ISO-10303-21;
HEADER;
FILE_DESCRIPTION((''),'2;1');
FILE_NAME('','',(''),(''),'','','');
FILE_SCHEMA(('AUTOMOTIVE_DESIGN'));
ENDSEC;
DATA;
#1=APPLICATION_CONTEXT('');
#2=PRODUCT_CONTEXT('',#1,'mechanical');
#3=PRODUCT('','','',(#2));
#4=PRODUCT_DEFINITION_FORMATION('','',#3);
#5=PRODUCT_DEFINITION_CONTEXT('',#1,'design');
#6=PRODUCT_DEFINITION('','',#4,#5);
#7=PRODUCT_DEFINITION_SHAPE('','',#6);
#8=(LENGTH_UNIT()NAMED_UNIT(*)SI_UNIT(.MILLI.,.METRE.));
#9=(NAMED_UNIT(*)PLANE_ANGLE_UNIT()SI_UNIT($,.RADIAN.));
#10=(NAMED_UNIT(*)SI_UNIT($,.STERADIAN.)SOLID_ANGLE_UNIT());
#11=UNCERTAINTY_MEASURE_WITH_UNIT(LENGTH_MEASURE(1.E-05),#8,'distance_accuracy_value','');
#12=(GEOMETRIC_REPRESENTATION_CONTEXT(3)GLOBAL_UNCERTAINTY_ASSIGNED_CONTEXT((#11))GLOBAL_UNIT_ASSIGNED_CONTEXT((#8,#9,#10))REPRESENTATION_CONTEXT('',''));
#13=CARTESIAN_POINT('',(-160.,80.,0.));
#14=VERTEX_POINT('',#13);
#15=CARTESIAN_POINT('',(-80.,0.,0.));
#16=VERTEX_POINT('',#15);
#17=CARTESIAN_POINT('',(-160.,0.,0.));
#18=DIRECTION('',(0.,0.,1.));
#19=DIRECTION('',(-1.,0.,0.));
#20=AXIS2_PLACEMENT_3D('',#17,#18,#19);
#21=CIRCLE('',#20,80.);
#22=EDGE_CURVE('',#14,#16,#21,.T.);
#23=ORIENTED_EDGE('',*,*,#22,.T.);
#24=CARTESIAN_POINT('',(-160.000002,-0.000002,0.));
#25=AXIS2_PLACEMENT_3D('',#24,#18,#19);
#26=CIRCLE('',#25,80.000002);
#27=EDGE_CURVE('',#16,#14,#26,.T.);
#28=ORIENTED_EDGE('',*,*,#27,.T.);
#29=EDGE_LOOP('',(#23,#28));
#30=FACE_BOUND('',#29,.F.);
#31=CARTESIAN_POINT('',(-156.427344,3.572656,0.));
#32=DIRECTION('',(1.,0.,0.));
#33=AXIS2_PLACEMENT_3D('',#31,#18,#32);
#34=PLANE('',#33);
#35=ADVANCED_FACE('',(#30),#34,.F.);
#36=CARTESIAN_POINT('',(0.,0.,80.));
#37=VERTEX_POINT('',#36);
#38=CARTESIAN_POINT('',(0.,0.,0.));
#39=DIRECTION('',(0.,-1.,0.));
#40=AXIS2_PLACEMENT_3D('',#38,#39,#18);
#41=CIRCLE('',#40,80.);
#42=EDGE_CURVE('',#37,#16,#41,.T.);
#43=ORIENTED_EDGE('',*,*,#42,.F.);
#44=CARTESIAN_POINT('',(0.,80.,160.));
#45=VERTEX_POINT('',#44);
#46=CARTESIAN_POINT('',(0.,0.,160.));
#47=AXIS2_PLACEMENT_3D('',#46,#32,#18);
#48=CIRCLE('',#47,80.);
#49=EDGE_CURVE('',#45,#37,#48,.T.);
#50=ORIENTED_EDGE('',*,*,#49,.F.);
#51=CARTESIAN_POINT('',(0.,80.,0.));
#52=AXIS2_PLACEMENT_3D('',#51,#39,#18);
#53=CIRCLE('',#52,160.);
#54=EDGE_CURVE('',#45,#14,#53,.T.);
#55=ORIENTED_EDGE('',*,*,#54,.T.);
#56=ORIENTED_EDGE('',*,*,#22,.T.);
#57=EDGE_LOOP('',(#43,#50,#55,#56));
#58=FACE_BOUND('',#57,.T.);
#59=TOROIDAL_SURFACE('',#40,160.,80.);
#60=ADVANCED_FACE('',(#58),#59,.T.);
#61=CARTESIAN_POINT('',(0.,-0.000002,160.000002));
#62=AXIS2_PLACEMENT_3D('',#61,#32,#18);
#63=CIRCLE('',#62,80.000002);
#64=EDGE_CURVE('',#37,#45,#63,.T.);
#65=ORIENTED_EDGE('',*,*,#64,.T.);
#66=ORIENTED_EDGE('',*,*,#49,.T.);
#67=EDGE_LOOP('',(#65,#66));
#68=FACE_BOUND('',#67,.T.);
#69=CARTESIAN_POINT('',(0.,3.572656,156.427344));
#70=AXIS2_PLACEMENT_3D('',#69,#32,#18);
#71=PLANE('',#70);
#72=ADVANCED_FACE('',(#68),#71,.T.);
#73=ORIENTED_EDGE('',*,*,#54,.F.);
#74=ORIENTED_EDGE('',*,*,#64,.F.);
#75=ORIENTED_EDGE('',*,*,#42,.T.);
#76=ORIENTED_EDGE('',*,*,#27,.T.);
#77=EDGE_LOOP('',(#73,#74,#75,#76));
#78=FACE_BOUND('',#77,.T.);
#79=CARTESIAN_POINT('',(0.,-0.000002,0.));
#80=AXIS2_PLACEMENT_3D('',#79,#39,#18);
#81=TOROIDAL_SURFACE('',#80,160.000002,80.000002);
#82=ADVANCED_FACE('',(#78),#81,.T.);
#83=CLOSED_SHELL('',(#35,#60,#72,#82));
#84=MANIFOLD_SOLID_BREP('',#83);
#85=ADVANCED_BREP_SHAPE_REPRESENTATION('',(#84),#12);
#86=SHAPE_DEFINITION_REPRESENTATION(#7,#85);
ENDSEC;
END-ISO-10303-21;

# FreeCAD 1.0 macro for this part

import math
import FreeCAD as App
import Part
import Sketcher
from FreeCAD import Vector

doc = App.newDocument("Part")
body = doc.addObject("PartDesign::Body", "Body")

# Sketch on YZ plane
sketch1 = body.newObject("Sketcher::SketchObject", "Sketch")
sketch1.AttachmentSupport = (doc.getObject("YZ_Plane"), [""])
sketch1.MapMode = "FlatFace"
sketch1.addGeometry([
    Part.ArcOfCircle(Part.Circle(Vector(0, 160, 0), Vector(0, 0, 1), 80), math.radians(-90), math.radians(0)),
    Part.ArcOfCircle(Part.Circle(Vector(0, 160, 0), Vector(0, 0, 1), 80), math.radians(0), math.radians(270)),
], False)
sketch1.addConstraint([
    Sketcher.Constraint("Tangent", 0, 1, 1, 2),
    Sketcher.Constraint("Coincident", 1, 1, 0, 2),
    Sketcher.Constraint("PointOnObject", 0, 3, -2),
    Sketcher.Constraint("PointOnObject", 0, 1, -2),
    Sketcher.Constraint("Horizontal", 0, 3, 1, 1),
    Sketcher.Constraint("Radius", 0, 80.000002),
    Sketcher.Constraint("DistanceY", -1, 1, 0, 3, 160.000002),
])

# Sketch on XZ plane
sketch2 = body.newObject("Sketcher::SketchObject", "Sketch001")
sketch2.AttachmentSupport = (doc.getObject("XZ_Plane"), [""])
sketch2.MapMode = "FlatFace"
sketch2.addGeometry(Part.ArcOfCircle(Part.Circle(Vector(0, 0, 0), Vector(0, 0, 1), 160), math.radians(90), math.radians(180)), False)
sketch2.addConstraint([
    Sketcher.Constraint("Coincident", 0, 3, -1, 1),
    Sketcher.Constraint("PointOnObject", 0, 1, -2),
    Sketcher.Constraint("PointOnObject", 0, 2, -1),
    Sketcher.Constraint("Radius", 0, 160.0),
])
doc.recompute()

additivepipe = body.newObject("PartDesign::AdditivePipe", "AdditivePipe")
additivepipe.Profile = sketch1
additivepipe.Spine = (sketch2, ["Edge1"])

doc.recompute()
